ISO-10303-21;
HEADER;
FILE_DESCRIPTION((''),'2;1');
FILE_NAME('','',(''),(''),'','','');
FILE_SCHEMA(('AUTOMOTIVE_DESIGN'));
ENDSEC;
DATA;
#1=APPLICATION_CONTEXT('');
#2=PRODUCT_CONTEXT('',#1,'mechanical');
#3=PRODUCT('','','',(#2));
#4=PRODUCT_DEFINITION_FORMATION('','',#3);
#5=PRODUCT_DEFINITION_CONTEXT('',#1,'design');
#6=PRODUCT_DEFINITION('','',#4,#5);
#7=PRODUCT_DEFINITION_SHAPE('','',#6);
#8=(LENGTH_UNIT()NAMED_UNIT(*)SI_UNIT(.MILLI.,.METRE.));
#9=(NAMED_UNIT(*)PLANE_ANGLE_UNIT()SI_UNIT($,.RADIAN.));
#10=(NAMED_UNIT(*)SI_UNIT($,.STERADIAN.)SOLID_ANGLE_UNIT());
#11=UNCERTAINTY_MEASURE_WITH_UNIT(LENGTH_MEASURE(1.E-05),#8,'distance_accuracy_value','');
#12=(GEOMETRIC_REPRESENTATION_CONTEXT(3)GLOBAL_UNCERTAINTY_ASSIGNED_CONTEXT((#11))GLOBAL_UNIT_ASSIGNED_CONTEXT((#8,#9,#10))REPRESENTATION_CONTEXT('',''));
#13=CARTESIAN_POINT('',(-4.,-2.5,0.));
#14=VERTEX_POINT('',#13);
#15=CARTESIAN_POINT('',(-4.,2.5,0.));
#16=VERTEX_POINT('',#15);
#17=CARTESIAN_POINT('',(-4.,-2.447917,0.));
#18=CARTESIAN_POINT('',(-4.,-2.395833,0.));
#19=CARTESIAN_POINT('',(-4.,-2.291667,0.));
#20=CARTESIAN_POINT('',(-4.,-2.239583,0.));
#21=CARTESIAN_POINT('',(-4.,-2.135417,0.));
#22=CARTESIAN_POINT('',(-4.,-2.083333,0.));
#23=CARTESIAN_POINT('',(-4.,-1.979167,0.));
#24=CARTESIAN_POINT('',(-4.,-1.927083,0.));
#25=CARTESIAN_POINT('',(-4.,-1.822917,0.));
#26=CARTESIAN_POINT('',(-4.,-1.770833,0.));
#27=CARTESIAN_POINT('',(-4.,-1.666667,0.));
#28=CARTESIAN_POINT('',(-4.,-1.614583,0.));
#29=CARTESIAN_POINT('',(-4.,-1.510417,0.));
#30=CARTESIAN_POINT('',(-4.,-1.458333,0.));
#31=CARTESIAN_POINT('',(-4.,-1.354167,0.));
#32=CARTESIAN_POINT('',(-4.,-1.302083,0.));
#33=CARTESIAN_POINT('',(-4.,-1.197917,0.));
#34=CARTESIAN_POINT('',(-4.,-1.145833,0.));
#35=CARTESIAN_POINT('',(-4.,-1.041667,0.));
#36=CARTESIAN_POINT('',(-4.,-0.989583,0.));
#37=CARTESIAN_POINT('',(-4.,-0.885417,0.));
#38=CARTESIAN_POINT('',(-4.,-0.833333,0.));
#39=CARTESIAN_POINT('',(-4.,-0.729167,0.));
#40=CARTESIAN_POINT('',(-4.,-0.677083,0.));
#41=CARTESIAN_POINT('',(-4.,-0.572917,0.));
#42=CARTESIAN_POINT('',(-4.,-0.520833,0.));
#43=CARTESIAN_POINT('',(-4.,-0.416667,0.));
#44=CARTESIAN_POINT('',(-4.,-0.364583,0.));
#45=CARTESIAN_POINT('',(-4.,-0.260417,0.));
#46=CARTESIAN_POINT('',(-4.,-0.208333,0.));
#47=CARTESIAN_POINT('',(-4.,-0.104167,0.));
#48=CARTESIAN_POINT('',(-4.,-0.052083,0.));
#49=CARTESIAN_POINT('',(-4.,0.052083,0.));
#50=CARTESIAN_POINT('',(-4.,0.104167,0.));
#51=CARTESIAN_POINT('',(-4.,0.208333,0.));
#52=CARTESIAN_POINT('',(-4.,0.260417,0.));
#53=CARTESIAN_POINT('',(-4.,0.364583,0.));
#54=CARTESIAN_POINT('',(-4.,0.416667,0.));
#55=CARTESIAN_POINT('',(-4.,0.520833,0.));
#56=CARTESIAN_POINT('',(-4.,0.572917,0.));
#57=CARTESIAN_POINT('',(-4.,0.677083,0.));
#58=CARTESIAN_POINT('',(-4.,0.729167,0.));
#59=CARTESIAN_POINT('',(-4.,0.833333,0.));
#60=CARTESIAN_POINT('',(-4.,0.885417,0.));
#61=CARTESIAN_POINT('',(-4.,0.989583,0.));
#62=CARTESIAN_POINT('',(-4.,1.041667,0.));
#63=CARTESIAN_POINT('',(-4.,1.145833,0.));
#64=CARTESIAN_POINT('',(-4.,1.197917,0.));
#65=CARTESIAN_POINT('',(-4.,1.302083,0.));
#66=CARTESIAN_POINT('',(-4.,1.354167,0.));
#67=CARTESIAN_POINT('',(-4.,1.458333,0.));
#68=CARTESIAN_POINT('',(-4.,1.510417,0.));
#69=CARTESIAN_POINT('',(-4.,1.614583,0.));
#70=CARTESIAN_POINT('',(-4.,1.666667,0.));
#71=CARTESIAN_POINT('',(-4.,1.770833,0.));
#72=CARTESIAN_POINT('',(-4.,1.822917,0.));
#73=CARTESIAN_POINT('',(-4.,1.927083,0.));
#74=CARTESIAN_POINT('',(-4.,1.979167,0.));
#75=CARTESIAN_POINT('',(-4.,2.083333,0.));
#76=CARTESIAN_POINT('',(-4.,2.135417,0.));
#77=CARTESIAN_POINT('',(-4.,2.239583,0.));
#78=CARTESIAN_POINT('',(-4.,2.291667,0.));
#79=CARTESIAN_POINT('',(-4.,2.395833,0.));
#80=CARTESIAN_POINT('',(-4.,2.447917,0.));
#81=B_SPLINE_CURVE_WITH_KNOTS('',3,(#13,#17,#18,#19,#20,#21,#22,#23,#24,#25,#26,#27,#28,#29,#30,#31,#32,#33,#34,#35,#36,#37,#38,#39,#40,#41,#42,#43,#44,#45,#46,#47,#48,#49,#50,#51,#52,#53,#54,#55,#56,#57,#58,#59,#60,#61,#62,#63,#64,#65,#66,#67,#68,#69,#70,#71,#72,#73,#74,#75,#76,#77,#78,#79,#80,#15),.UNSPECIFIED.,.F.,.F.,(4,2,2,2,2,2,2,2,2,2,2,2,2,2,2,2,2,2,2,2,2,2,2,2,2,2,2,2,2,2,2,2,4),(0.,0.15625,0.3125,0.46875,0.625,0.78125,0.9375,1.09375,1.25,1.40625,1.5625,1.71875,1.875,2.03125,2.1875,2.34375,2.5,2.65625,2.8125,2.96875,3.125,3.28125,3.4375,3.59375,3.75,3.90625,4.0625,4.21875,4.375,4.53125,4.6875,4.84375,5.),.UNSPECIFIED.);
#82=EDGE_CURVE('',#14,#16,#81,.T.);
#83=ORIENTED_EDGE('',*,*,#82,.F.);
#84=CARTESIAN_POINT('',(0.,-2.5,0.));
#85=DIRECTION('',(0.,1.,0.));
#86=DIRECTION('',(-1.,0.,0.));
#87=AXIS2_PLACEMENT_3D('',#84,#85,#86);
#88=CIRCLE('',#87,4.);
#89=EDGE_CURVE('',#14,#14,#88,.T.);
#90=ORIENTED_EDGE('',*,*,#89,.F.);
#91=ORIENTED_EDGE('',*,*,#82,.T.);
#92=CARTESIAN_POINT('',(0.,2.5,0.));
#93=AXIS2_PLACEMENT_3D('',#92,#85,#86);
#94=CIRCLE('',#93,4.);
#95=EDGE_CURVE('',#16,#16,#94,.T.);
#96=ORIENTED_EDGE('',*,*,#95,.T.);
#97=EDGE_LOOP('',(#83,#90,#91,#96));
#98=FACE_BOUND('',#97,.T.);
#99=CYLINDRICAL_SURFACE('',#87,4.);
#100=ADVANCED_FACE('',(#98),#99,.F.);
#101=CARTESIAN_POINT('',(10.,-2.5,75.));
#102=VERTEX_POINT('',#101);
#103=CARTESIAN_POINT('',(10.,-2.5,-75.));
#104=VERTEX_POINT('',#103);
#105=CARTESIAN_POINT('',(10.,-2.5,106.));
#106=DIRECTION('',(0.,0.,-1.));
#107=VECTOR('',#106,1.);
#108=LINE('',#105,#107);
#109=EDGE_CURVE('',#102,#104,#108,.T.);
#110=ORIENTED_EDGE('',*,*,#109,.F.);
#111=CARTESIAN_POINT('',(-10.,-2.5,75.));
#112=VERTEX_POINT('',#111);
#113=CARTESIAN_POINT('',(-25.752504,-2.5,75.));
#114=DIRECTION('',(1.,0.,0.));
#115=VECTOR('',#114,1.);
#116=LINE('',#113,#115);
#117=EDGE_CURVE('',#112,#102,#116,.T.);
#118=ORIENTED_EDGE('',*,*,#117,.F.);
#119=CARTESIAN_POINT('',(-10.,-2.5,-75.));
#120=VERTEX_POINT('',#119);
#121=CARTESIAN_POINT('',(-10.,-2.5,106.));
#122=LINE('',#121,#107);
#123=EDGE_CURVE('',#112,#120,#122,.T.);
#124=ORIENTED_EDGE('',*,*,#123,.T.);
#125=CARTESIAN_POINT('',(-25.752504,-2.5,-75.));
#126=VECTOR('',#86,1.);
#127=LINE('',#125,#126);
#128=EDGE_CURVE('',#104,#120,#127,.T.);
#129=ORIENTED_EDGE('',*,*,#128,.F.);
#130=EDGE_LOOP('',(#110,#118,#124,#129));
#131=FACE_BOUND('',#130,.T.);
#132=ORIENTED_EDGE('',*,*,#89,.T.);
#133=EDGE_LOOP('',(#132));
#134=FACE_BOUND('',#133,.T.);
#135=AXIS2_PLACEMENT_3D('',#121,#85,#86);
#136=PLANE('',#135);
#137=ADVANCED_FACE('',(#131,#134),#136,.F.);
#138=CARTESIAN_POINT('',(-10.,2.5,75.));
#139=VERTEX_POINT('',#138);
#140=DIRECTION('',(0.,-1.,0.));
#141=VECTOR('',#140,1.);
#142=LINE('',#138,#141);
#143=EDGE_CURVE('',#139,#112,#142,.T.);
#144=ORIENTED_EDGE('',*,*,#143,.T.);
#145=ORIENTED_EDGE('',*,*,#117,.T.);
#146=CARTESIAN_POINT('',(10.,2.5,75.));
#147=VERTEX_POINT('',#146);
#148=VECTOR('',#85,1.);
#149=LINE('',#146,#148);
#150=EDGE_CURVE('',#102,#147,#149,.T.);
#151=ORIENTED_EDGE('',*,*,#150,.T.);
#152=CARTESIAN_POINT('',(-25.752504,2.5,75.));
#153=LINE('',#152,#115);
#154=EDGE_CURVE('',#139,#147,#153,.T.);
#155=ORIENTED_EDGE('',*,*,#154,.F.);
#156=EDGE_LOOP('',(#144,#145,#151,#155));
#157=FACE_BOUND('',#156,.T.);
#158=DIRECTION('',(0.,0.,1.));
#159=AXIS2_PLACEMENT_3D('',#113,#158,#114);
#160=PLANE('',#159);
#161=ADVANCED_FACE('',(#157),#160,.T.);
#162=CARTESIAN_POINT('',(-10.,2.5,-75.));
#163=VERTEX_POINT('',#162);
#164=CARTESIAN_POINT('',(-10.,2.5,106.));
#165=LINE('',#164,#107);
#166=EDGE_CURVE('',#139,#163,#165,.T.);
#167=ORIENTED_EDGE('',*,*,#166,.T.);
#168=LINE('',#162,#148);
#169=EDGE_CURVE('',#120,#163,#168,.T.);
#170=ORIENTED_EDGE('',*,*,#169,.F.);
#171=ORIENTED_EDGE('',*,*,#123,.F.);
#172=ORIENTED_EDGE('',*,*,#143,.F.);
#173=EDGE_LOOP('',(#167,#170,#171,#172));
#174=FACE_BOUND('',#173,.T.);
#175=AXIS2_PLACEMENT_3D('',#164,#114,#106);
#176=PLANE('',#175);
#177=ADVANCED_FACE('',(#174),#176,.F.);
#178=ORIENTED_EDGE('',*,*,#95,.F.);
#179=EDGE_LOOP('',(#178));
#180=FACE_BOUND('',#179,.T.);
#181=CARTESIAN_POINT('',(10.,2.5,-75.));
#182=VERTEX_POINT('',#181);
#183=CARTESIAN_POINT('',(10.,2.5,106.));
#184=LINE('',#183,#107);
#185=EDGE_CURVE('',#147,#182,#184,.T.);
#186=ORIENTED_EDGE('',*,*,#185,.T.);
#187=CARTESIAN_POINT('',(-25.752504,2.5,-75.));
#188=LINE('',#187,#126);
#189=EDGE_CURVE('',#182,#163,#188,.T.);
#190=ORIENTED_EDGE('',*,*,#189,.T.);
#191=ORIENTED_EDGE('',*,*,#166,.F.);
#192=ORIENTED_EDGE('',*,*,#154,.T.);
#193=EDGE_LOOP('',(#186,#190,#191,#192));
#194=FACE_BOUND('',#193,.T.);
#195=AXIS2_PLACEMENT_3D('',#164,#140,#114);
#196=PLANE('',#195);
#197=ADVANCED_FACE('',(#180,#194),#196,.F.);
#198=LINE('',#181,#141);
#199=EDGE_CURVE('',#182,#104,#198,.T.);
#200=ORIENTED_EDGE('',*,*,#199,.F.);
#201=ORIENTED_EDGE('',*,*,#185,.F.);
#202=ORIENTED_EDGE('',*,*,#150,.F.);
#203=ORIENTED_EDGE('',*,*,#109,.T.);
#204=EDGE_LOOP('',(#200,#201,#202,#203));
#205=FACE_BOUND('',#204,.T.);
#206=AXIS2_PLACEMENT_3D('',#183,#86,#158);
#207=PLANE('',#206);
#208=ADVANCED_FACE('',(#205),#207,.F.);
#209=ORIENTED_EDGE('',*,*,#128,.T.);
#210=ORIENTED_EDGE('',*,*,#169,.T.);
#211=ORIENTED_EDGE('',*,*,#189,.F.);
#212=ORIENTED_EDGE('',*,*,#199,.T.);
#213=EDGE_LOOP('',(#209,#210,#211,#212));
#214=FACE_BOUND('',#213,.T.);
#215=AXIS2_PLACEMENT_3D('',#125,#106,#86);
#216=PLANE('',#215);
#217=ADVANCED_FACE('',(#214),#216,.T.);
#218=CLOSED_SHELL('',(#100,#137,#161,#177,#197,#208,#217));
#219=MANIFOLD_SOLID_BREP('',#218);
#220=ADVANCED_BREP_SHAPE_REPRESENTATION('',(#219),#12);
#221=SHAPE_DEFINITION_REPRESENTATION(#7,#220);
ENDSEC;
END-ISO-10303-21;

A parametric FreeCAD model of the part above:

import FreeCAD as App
import Part
import Sketcher
from FreeCAD import Vector
Q = App.Units.Quantity

doc = App.newDocument("Part")
body = doc.addObject("PartDesign::Body", "Body")

sketch1 = body.newObject("Sketcher::SketchObject", "Sketch")
sketch1.AttachmentSupport = (doc.getObject("XY_Plane"), [""])
sketch1.MapMode = "FlatFace"
sketch1.addGeometry(Part.LineSegment(Vector(-10, 2.5, 0), Vector(-10, -2.5, 0)), False)
sketch1.addGeometry(Part.LineSegment(Vector(-10, -2.5, 0), Vector(10, -2.5, 0)), False)
sketch1.addGeometry(Part.LineSegment(Vector(10, -2.5, 0), Vector(10, 2.5, 0)), False)
sketch1.addGeometry(Part.LineSegment(Vector(10, 2.5, 0), Vector(-10, 2.5, 0)), False)
sketch1.addConstraint(Sketcher.Constraint("Coincident", 0, 2, 1, 1))
sketch1.addConstraint(Sketcher.Constraint("Coincident", 1, 2, 2, 1))
sketch1.addConstraint(Sketcher.Constraint("Coincident", 2, 2, 3, 1))
sketch1.addConstraint(Sketcher.Constraint("Coincident", 3, 2, 0, 1))
sketch1.addConstraint(Sketcher.Constraint("Vertical", 0))
sketch1.addConstraint(Sketcher.Constraint("Horizontal", 1))
sketch1.addConstraint(Sketcher.Constraint("Vertical", 2))
sketch1.addConstraint(Sketcher.Constraint("Horizontal", 3))
sketch1.addConstraint(Sketcher.Constraint("Symmetric", 0, 2, 2, 2, -1, 1))
sketch1.addConstraint(Sketcher.Constraint("DistanceX", 1, 1, 1, 2, Q("20 mm")))
sketch1.addConstraint(Sketcher.Constraint("DistanceY", 0, 2, 0, 1, Q("5 mm")))
pad1 = body.newObject("PartDesign::Pad", "Pad")
pad1.Profile = sketch1
pad1.Length = 212
pad1.Midplane = True

sketch2 = body.newObject("Sketcher::SketchObject", "Sketch001")
sketch2.AttachmentSupport = (doc.getObject("XZ_Plane"), [""])
sketch2.MapMode = "FlatFace"
sketch2.AttachmentOffset = App.Placement(Vector(0, 0, -2.5), App.Rotation())
sketch2.addGeometry(Part.Circle(Vector(0, -87.5, 0), Vector(0, 0, 1), 4), False)
sketch2.addGeometry(Part.Circle(Vector(0, 0, 0), Vector(0, 0, 1), 4), False)
sketch2.addGeometry(Part.Circle(Vector(0, 87.5, 0), Vector(0, 0, 1), 4), False)
sketch2.addConstraint(Sketcher.Constraint("Coincident", 1, 3, -1, 1))
sketch2.addConstraint(Sketcher.Constraint("Equal", 0, 1))
sketch2.addConstraint(Sketcher.Constraint("Equal", 1, 2))
sketch2.addConstraint(Sketcher.Constraint("Symmetric", 0, 3, 2, 3, -1, 1))
sketch2.addConstraint(Sketcher.Constraint("PointOnObject", 0, 3, -2))
sketch2.addConstraint(Sketcher.Constraint("Diameter", 0, Q("8 mm")))
sketch2.addConstraint(Sketcher.Constraint("DistanceY", 0, 3, 2, 3, Q("175 mm")))
pocket1 = body.newObject("PartDesign::Pocket", "Pocket")
pocket1.Profile = sketch2
pocket1.Type = "ThroughAll"
pocket1.Reversed = True

sketch3 = body.newObject("Sketcher::SketchObject", "Sketch002")
sketch3.AttachmentSupport = (doc.getObject("XZ_Plane"), [""])
sketch3.MapMode = "FlatFace"
sketch3.AttachmentOffset = App.Placement(Vector(0, 0, -2.5), App.Rotation())
sketch3.addGeometry(Part.LineSegment(Vector(-32.3, -128.3, 0), Vector(-32.3, 128.3, 0)), False)
sketch3.addGeometry(Part.LineSegment(Vector(-32.3, 128.3, 0), Vector(32.3, 128.3, 0)), False)
sketch3.addGeometry(Part.LineSegment(Vector(32.3, 128.3, 0), Vector(32.3, -128.3, 0)), False)
sketch3.addGeometry(Part.LineSegment(Vector(32.3, -128.3, 0), Vector(-32.3, -128.3, 0)), False)
sketch3.addGeometry(Part.LineSegment(Vector(25.752504, 75, 0), Vector(-25.752504, 75, 0)), False)
sketch3.addGeometry(Part.LineSegment(Vector(-25.752504, 75, 0), Vector(-25.752504, -75, 0)), False)
sketch3.addGeometry(Part.LineSegment(Vector(-25.752504, -75, 0), Vector(25.752504, -75, 0)), False)
sketch3.addGeometry(Part.LineSegment(Vector(25.752504, -75, 0), Vector(25.752504, 75, 0)), False)
sketch3.addConstraint(Sketcher.Constraint("Coincident", 0, 2, 1, 1))
sketch3.addConstraint(Sketcher.Constraint("Coincident", 1, 2, 2, 1))
sketch3.addConstraint(Sketcher.Constraint("Coincident", 2, 2, 3, 1))
sketch3.addConstraint(Sketcher.Constraint("Coincident", 3, 2, 0, 1))
sketch3.addConstraint(Sketcher.Constraint("Coincident", 4, 2, 5, 1))
sketch3.addConstraint(Sketcher.Constraint("Coincident", 5, 2, 6, 1))
sketch3.addConstraint(Sketcher.Constraint("Coincident", 6, 2, 7, 1))
sketch3.addConstraint(Sketcher.Constraint("Coincident", 7, 2, 4, 1))
sketch3.addConstraint(Sketcher.Constraint("Vertical", 0))
sketch3.addConstraint(Sketcher.Constraint("Horizontal", 1))
sketch3.addConstraint(Sketcher.Constraint("Vertical", 2))
sketch3.addConstraint(Sketcher.Constraint("Horizontal", 3))
sketch3.addConstraint(Sketcher.Constraint("Horizontal", 4))
sketch3.addConstraint(Sketcher.Constraint("Vertical", 5))
sketch3.addConstraint(Sketcher.Constraint("Horizontal", 6))
sketch3.addConstraint(Sketcher.Constraint("Vertical", 7))
sketch3.addConstraint(Sketcher.Constraint("Symmetric", 0, 2, 2, 2, -1, 1))
sketch3.addConstraint(Sketcher.Constraint("Symmetric", 4, 2, 6, 2, -1, 1))
sketch3.addConstraint(Sketcher.Constraint("DistanceY", 5, 2, 5, 1, Q("150 mm")))
sketch3.addConstraint(Sketcher.Constraint("DistanceX", 1, 1, 1, 2, Q("64.6 mm")))
sketch3.addConstraint(Sketcher.Constraint("DistanceY", 0, 1, 0, 2, Q("256.6 mm")))
sketch3.addConstraint(Sketcher.Constraint("DistanceX", 4, 2, 4, 1, Q("51.505008 mm")))
pocket2 = body.newObject("PartDesign::Pocket", "Pocket001")
pocket2.Profile = sketch3
pocket2.Type = "ThroughAll"
pocket2.Reversed = True

doc.recompute()
